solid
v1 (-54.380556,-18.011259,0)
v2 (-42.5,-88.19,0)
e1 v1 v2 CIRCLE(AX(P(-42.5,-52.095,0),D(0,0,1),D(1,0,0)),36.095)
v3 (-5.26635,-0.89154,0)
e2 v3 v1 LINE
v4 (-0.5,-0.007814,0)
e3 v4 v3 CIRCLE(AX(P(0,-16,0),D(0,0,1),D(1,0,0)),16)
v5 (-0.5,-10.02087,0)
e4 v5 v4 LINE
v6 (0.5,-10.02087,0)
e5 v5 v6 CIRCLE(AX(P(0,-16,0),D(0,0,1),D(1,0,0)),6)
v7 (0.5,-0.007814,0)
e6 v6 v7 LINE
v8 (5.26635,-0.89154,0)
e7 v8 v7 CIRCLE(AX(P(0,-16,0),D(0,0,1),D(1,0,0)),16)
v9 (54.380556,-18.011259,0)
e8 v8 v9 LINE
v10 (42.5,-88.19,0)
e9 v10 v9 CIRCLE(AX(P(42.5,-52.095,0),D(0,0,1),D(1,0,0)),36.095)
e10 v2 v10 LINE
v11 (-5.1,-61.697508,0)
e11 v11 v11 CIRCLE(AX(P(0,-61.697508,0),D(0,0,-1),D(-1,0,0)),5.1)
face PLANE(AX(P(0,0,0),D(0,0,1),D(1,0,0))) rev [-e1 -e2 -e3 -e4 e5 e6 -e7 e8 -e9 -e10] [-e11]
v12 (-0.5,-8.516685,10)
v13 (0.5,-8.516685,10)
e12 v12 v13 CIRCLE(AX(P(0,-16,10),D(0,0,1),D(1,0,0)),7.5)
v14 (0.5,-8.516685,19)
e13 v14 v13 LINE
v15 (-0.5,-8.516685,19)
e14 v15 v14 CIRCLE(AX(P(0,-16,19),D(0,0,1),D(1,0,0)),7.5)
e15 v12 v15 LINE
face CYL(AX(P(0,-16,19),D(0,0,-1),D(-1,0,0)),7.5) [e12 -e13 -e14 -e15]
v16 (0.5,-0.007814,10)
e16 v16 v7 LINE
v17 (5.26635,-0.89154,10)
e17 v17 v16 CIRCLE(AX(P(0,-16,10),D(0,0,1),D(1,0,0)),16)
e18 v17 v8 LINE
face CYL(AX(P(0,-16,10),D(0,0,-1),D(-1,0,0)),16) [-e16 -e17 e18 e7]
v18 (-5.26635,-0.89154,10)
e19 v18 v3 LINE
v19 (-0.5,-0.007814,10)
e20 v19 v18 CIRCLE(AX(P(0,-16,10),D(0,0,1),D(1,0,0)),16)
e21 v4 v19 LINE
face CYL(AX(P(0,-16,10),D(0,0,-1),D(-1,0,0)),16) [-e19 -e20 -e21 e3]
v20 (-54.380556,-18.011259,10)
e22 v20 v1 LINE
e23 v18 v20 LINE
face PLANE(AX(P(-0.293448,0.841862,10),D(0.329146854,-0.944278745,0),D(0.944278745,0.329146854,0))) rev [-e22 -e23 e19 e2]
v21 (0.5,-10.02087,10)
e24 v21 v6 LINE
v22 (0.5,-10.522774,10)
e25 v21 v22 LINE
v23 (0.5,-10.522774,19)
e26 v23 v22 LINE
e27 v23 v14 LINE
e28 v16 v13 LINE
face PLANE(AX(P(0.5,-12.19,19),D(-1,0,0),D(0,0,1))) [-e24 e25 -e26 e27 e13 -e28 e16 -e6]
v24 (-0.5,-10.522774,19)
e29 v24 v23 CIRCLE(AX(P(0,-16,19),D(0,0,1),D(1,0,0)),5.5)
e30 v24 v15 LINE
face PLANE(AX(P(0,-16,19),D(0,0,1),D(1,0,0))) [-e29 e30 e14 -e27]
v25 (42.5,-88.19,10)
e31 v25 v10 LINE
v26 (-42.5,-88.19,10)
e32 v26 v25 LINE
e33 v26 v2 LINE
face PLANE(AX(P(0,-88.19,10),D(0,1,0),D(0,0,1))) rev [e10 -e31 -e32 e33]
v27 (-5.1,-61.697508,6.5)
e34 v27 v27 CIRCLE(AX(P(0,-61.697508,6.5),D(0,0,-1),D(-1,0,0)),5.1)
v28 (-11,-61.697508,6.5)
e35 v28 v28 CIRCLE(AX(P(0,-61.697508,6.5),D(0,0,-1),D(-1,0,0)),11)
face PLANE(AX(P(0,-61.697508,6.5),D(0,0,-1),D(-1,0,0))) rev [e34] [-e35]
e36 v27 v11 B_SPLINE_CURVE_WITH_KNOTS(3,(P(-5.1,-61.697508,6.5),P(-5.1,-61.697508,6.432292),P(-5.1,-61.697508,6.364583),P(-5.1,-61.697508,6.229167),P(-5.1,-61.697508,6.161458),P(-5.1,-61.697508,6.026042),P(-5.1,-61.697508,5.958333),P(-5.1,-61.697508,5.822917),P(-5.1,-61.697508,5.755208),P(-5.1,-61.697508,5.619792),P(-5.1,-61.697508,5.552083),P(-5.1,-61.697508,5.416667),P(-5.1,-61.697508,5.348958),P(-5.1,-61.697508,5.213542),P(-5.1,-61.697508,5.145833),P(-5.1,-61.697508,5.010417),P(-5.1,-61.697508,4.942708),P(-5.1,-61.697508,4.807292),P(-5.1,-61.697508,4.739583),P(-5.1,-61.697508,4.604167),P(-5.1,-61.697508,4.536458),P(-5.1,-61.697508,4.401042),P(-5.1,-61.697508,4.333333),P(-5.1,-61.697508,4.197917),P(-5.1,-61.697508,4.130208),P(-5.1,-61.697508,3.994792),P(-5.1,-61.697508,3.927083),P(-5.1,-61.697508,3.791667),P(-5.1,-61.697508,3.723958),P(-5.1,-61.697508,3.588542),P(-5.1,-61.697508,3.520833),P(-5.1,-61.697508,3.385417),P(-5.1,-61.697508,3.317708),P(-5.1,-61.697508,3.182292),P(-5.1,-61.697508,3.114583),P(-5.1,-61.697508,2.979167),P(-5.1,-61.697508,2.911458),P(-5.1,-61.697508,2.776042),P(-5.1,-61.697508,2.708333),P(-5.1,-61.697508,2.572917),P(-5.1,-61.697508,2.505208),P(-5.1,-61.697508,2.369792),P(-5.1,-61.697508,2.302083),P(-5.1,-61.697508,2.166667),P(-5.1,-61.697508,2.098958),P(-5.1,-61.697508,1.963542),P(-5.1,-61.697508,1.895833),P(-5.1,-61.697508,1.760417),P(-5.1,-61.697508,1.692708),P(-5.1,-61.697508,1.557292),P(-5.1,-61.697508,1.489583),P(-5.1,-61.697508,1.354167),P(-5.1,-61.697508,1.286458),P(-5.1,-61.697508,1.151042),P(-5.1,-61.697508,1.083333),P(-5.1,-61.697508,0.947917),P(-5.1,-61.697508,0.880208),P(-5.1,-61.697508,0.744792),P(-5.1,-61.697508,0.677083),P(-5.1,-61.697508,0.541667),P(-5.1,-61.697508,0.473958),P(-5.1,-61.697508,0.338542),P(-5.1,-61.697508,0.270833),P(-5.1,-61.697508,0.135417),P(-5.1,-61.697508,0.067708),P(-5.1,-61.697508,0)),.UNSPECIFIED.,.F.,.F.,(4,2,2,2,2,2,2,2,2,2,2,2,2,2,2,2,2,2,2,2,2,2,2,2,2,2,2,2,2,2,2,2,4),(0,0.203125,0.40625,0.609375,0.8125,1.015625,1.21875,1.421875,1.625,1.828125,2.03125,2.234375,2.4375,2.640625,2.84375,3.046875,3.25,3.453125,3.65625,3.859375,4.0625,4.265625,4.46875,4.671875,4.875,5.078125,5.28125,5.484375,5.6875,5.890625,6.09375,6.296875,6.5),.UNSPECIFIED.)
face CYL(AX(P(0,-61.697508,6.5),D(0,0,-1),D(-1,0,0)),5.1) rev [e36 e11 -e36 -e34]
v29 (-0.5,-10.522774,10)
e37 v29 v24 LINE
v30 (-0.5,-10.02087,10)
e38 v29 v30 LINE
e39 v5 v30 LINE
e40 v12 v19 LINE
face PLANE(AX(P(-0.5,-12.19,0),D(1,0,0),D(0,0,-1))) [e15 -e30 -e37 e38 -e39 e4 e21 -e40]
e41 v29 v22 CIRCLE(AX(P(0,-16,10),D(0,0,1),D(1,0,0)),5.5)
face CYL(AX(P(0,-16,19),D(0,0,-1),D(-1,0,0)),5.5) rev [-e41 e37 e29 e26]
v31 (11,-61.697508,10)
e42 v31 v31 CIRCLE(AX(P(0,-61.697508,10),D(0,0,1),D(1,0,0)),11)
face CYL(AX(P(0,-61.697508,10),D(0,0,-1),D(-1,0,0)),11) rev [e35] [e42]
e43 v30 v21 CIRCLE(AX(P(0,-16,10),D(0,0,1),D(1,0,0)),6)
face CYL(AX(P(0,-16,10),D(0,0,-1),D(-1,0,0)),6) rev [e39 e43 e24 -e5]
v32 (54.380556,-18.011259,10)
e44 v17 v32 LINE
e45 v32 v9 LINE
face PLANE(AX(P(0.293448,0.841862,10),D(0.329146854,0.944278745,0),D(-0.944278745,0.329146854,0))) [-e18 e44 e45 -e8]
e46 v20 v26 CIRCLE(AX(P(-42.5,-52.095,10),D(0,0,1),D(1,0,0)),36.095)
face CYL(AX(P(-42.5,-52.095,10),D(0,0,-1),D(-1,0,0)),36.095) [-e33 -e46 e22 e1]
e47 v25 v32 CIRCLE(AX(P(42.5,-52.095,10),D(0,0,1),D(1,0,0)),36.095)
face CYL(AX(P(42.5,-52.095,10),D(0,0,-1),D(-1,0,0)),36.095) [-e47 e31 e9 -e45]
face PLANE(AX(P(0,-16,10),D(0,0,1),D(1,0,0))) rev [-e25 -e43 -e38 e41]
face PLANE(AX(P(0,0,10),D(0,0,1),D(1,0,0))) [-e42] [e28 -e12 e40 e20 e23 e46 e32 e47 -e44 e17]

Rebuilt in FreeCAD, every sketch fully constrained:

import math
import FreeCAD as App
import Part
import Sketcher
Q = App.Units.Quantity

doc = App.newDocument("Part")
body = doc.addObject("PartDesign::Body", "Body")

# Sketch on XY plane
sketch1 = body.newObject("Sketcher::SketchObject", "Sketch")
sketch1.AttachmentSupport = (doc.getObject("XY_Plane"), [""])
sketch1.MapMode = "FlatFace"
sketch1.addGeometry(Part.LineSegment(App.Vector(54, -18, 0), App.Vector(5, -1, 0)), False)
sketch1.addGeometry(Part.ArcOfCircle(Part.Circle(App.Vector(0, -16, 0), App.Vector(0, 0, 1), 16), math.radians(71), math.radians(109)), False)
sketch1.addGeometry(Part.LineSegment(App.Vector(-5, -1, 0), App.Vector(-54, -18, 0)), False)
sketch1.addGeometry(Part.ArcOfCircle(Part.Circle(App.Vector(-42, -52, 0), App.Vector(0, 0, 1), 36), math.radians(109), math.radians(270)), False)
sketch1.addGeometry(Part.LineSegment(App.Vector(-42, -88, 0), App.Vector(42, -88, 0)), False)
sketch1.addGeometry(Part.ArcOfCircle(Part.Circle(App.Vector(42, -52, 0), App.Vector(0, 0, 1), 36), math.radians(-90), math.radians(71)), False)
sketch1.addGeometry(Part.Circle(App.Vector(0, -62, 0), App.Vector(0, 0, 1), 11), False)
sketch1.addGeometry(Part.Circle(App.Vector(0, -16, 0), App.Vector(0, 0, 1), 6), False)
sketch1.addConstraint(Sketcher.Constraint("Tangent", 0, 2, 1, 1))
sketch1.addConstraint(Sketcher.Constraint("Tangent", 1, 2, 2, 1))
sketch1.addConstraint(Sketcher.Constraint("Tangent", 2, 2, 3, 1))
sketch1.addConstraint(Sketcher.Constraint("Tangent", 3, 2, 4, 1))
sketch1.addConstraint(Sketcher.Constraint("Tangent", 4, 2, 5, 1))
sketch1.addConstraint(Sketcher.Constraint("Tangent", 5, 2, 0, 1))
sketch1.addConstraint(Sketcher.Constraint("Horizontal", 4))
sketch1.addConstraint(Sketcher.Constraint("Coincident", 7, 3, 1, 3))
sketch1.addConstraint(Sketcher.Constraint("Equal", 3, 5))
sketch1.addConstraint(Sketcher.Constraint("Symmetric", 0, 2, 1, 2, -2))
sketch1.addConstraint(Sketcher.Constraint("PointOnObject", 6, 3, -2))
sketch1.addConstraint(Sketcher.Constraint("Diameter", 6, Q("22 mm")))
sketch1.addConstraint(Sketcher.Constraint("Diameter", 7, Q("12 mm")))
sketch1.addConstraint(Sketcher.Constraint("Radius", 1, Q("16 mm")))
sketch1.addConstraint(Sketcher.Constraint("DistanceX", 4, 1, 4, 2, Q("85 mm")))
sketch1.addConstraint(Sketcher.Constraint("DistanceY", 1, 3, -1, 1, Q("16 mm")))
sketch1.addConstraint(Sketcher.Constraint("Radius", 3, Q("36.095 mm")))
sketch1.addConstraint(Sketcher.Constraint("DistanceY", 3, 2, -1, 1, Q("88.19 mm")))
sketch1.addConstraint(Sketcher.Constraint("DistanceY", 6, 3, -1, 1, Q("61.697508 mm")))
pad1 = body.newObject("PartDesign::Pad", "Pad")
pad1.Profile = sketch1
pad1.Length = 10

# Sketch on XY plane
sketch2 = body.newObject("Sketcher::SketchObject", "Sketch001")
sketch2.AttachmentSupport = (doc.getObject("XY_Plane"), [""])
sketch2.MapMode = "FlatFace"
sketch2.AttachmentOffset = App.Placement(App.Vector(0, 0, 10), App.Rotation())
sketch2.addGeometry(Part.Circle(App.Vector(0, -16, 0), App.Vector(0, 0, 1), 8), False)
sketch2.addGeometry(Part.Circle(App.Vector(0, -16, 0), App.Vector(0, 0, 1), 6), False)
sketch2.addConstraint(Sketcher.Constraint("Coincident", 1, 3, 0, 3))
sketch2.addConstraint(Sketcher.Constraint("PointOnObject", 0, 3, -2))
sketch2.addConstraint(Sketcher.Constraint("Diameter", 0, Q("15 mm")))
sketch2.addConstraint(Sketcher.Constraint("Diameter", 1, Q("11 mm")))
sketch2.addConstraint(Sketcher.Constraint("DistanceY", 0, 3, -1, 1, Q("16 mm")))
pad2 = body.newObject("PartDesign::Pad", "Pad001")
pad2.Profile = sketch2
pad2.Length = 9

# Sketch on XY plane
sketch3 = body.newObject("Sketcher::SketchObject", "Sketch002")
sketch3.AttachmentSupport = (doc.getObject("XY_Plane"), [""])
sketch3.MapMode = "FlatFace"
sketch3.addGeometry(Part.Circle(App.Vector(0, -62, 0), App.Vector(0, 0, 1), 11), False)
sketch3.addGeometry(Part.Circle(App.Vector(0, -62, 0), App.Vector(0, 0, 1), 5), False)
sketch3.addConstraint(Sketcher.Constraint("Coincident", 1, 3, 0, 3))
sketch3.addConstraint(Sketcher.Constraint("PointOnObject", 0, 3, -2))
sketch3.addConstraint(Sketcher.Constraint("Diameter", 0, Q("22 mm")))
sketch3.addConstraint(Sketcher.Constraint("Diameter", 1, Q("10.2 mm")))
sketch3.addConstraint(Sketcher.Constraint("DistanceY", 0, 3, -1, 1, Q("61.697508 mm")))
pad3 = body.newObject("PartDesign::Pad", "Pad002")
pad3.Profile = sketch3
pad3.Length = 6.5

# Sketch on XZ plane
sketch4 = body.newObject("Sketcher::SketchObject", "Sketch003")
sketch4.AttachmentSupport = (doc.getObject("XZ_Plane"), [""])
sketch4.MapMode = "FlatFace"
sketch4.AttachmentOffset = App.Placement(App.Vector(0, 0, -1.81), App.Rotation())
sketch4.addGeometry(Part.LineSegment(App.Vector(0.5, 0, 0), App.Vector(0.5, 19, 0)), False)
sketch4.addGeometry(Part.LineSegment(App.Vector(0.5, 19, 0), App.Vector(-0.5, 19, 0)), False)
sketch4.addGeometry(Part.LineSegment(App.Vector(-0.5, 19, 0), App.Vector(-0.5, 0, 0)), False)
sketch4.addGeometry(Part.LineSegment(App.Vector(-0.5, 0, 0), App.Vector(0.5, 0, 0)), False)
sketch4.addConstraint(Sketcher.Constraint("Coincident", 0, 2, 1, 1))
sketch4.addConstraint(Sketcher.Constraint("Coincident", 1, 2, 2, 1))
sketch4.addConstraint(Sketcher.Constraint("Coincident", 2, 2, 3, 1))
sketch4.addConstraint(Sketcher.Constraint("Coincident", 3, 2, 0, 1))
sketch4.addConstraint(Sketcher.Constraint("Vertical", 0))
sketch4.addConstraint(Sketcher.Constraint("Horizontal", 1))
sketch4.addConstraint(Sketcher.Constraint("Vertical", 2))
sketch4.addConstraint(Sketcher.Constraint("Horizontal", 3))
sketch4.addConstraint(Sketcher.Constraint("Symmetric", 2, 2, 3, 2, -1, 1))
sketch4.addConstraint(Sketcher.Constraint("DistanceX", 1, 2, 1, 1, Q("1 mm")))
sketch4.addConstraint(Sketcher.Constraint("DistanceY", 0, 1, 0, 2, Q("19 mm")))
pocket1 = body.newObject("PartDesign::Pocket", "Pocket")
pocket1.Profile = sketch4
pocket1.Length = 14
pocket1.Reversed = True

doc.recompute()
